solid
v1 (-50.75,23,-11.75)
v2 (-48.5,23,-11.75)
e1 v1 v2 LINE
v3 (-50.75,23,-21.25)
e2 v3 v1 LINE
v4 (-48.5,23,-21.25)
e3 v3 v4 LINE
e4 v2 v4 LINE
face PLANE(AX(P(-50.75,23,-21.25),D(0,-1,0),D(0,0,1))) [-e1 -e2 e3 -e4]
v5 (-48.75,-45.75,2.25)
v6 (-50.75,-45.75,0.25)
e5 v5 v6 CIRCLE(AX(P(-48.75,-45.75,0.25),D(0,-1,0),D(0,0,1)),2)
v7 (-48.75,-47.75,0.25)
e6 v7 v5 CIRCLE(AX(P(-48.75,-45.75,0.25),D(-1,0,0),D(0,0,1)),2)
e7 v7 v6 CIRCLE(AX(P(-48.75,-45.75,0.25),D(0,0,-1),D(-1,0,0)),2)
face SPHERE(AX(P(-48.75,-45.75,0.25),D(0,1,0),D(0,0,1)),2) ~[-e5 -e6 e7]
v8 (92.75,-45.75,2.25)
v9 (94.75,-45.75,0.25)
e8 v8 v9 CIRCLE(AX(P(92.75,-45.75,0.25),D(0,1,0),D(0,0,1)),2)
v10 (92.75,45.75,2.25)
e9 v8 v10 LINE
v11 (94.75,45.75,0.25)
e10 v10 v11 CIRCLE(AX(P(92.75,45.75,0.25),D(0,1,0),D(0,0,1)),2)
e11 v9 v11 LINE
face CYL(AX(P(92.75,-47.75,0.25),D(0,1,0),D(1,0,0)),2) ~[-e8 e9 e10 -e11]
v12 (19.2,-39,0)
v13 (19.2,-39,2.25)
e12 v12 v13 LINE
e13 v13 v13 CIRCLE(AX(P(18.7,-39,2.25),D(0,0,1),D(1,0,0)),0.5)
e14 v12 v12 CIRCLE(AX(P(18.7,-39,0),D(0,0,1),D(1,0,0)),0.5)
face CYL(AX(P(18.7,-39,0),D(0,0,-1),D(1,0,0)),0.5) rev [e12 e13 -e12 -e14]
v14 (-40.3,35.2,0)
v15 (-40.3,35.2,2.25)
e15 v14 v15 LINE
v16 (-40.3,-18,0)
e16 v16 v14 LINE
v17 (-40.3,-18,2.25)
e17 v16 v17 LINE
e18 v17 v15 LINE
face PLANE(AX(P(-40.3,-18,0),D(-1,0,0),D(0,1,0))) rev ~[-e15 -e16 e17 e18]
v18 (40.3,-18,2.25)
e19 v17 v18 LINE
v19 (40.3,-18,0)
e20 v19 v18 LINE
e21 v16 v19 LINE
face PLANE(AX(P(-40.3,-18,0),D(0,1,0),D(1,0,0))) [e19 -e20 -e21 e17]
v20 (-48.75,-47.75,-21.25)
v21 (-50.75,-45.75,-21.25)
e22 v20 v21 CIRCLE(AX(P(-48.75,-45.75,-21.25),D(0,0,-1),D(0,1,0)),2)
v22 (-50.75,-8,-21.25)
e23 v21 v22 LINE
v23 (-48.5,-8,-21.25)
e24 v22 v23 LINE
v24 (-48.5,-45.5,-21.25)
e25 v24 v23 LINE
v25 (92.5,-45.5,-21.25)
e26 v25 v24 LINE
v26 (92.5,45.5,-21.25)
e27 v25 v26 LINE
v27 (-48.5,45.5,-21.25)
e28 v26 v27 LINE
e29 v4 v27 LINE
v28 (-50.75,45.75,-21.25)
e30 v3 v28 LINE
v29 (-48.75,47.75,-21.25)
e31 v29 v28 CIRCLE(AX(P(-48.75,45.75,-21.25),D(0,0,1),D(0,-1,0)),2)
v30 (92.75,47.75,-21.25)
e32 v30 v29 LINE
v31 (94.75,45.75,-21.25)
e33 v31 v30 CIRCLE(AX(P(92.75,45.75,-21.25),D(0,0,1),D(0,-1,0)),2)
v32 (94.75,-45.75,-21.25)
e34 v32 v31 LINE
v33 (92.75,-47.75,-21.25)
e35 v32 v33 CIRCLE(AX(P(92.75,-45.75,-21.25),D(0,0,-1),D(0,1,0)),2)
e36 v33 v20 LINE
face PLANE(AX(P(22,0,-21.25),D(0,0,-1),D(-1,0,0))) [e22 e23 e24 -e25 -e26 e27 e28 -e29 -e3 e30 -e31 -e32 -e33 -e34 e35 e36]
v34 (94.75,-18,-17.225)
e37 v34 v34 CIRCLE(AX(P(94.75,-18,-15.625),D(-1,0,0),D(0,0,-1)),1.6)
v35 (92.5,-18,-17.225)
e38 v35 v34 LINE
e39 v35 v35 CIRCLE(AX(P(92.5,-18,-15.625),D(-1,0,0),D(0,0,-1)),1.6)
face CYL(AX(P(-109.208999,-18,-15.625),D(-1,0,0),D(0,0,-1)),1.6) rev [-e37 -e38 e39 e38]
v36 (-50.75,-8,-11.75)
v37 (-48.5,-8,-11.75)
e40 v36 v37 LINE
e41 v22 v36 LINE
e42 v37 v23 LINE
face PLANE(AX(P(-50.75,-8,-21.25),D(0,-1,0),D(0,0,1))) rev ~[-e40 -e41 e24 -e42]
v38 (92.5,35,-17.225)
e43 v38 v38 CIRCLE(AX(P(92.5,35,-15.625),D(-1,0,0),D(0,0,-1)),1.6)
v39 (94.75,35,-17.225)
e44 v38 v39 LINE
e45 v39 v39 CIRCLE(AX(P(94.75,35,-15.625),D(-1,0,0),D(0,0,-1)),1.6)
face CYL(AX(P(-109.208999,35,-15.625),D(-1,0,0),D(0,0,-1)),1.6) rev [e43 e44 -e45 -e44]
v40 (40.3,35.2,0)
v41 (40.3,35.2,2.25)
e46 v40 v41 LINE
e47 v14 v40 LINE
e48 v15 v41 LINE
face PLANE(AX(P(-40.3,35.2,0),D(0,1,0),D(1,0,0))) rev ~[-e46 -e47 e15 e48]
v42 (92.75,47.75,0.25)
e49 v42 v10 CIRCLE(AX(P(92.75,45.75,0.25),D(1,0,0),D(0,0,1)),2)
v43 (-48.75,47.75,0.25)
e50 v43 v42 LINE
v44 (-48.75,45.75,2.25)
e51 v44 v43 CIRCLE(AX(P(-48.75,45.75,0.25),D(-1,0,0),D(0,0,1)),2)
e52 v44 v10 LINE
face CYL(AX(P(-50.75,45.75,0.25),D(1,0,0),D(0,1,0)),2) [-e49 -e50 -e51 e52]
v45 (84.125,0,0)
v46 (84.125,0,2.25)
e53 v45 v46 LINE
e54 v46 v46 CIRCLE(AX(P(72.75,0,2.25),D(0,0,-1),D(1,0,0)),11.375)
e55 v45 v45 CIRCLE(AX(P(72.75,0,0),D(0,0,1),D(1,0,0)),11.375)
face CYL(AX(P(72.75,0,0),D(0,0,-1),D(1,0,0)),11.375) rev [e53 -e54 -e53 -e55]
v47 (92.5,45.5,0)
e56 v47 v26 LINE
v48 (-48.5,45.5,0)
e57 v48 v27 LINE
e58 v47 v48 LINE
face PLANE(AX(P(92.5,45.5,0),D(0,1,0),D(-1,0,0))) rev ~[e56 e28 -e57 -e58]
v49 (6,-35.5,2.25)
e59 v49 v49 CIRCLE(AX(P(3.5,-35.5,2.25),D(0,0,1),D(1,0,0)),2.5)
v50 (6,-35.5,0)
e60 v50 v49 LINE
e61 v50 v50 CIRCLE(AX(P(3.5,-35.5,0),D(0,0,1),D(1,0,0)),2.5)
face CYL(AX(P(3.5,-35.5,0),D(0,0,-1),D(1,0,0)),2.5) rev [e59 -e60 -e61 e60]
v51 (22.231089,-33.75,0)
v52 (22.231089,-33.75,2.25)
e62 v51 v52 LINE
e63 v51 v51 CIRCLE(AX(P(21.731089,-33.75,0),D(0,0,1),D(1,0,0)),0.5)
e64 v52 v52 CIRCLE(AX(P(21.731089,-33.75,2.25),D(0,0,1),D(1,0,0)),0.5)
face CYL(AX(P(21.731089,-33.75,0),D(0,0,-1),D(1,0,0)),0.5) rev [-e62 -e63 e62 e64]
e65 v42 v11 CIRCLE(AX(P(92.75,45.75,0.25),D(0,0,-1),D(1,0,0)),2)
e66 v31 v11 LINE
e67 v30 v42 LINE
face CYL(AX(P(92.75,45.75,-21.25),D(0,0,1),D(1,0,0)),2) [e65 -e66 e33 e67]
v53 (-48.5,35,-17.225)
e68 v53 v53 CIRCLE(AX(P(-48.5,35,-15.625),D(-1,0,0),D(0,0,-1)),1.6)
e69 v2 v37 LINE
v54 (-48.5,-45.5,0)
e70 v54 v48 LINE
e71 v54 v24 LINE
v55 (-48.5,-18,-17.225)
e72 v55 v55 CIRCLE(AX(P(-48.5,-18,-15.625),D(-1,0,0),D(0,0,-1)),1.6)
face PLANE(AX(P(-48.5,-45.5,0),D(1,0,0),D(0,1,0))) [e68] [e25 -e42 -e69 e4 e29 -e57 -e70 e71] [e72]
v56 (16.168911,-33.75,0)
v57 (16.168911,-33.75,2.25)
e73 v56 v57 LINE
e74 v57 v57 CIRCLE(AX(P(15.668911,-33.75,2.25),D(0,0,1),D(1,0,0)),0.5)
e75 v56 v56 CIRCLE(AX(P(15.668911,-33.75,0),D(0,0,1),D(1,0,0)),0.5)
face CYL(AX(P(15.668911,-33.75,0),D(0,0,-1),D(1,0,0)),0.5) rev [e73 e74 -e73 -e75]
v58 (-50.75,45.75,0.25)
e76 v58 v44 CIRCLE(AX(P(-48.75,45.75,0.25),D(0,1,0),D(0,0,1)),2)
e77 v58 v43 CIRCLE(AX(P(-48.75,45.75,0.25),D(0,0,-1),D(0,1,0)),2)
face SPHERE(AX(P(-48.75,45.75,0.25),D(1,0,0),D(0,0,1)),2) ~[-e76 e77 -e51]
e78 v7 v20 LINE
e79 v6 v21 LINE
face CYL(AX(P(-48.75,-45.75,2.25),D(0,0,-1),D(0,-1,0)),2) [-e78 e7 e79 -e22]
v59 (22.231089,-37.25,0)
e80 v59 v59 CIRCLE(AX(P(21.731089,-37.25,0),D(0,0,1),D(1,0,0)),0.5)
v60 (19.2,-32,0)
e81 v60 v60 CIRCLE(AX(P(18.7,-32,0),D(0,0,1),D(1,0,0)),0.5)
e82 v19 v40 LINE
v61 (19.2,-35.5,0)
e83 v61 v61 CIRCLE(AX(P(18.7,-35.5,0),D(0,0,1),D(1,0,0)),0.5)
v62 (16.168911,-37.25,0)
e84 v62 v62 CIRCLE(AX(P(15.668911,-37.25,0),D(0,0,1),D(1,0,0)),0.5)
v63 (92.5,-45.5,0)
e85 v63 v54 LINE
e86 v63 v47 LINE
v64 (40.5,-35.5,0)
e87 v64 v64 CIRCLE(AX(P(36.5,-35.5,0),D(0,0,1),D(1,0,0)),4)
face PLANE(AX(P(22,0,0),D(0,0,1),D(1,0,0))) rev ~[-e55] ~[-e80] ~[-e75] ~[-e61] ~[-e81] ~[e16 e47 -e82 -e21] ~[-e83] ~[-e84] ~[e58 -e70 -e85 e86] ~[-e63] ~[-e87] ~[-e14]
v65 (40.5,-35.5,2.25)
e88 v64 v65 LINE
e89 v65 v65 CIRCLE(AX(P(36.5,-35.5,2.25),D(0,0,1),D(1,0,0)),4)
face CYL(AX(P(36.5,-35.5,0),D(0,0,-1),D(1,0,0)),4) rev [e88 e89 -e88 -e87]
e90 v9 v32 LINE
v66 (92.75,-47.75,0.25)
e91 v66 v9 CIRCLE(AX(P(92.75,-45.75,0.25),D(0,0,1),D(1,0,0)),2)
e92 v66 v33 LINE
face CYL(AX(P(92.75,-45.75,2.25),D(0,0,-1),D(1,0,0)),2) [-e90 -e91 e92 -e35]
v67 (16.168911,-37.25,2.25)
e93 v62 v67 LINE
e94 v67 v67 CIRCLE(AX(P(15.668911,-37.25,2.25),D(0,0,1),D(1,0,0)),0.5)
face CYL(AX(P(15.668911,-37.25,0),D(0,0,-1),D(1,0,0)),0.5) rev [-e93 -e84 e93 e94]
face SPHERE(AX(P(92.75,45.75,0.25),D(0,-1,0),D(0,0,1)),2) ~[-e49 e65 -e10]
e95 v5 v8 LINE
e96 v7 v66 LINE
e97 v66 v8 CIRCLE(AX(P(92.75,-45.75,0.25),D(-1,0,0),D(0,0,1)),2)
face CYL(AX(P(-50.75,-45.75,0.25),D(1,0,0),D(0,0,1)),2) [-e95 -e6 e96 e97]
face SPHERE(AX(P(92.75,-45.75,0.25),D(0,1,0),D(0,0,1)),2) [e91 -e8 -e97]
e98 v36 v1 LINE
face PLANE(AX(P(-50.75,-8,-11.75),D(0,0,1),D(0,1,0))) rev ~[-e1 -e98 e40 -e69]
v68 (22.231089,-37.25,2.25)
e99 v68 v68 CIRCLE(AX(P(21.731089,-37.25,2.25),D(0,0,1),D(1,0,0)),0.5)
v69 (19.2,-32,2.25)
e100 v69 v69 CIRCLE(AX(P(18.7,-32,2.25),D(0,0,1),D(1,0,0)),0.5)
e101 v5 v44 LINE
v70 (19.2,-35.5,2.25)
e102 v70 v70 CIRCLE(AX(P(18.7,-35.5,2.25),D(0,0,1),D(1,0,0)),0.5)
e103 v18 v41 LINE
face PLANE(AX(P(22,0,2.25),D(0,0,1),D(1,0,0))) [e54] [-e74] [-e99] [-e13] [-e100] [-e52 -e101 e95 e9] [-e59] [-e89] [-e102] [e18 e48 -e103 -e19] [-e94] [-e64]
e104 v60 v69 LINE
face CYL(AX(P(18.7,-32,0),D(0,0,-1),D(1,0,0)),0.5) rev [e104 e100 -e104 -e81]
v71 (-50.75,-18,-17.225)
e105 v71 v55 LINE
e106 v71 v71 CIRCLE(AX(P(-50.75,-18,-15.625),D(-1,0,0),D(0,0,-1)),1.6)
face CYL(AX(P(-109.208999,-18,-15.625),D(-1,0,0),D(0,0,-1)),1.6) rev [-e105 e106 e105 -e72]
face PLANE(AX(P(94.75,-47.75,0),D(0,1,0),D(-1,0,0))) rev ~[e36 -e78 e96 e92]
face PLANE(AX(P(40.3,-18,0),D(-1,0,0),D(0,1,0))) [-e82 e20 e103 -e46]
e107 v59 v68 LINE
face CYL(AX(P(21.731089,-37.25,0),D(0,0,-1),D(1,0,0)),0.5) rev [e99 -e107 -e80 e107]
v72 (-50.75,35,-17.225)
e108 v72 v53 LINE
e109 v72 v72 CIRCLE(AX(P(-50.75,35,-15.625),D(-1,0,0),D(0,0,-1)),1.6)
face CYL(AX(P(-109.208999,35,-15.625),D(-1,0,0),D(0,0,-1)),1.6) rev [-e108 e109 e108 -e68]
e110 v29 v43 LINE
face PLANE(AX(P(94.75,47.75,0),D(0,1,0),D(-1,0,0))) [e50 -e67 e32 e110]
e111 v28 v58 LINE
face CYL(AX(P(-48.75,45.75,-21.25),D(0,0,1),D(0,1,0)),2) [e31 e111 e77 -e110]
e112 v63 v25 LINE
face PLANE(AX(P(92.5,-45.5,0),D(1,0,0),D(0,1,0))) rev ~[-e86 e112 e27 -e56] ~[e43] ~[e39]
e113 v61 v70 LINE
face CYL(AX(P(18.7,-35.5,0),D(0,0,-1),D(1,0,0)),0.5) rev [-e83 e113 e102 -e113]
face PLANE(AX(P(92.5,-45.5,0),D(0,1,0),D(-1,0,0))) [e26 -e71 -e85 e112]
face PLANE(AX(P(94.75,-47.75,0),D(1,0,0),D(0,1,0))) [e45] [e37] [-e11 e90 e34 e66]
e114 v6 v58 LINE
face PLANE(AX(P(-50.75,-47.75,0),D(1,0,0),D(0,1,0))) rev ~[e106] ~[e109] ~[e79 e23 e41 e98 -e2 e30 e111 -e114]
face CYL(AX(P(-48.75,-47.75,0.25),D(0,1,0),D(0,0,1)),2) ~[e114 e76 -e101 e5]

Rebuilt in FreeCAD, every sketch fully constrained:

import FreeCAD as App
import Part
import Sketcher

V = App.Vector
Q = App.Units.Quantity


def edges_at(feature, points):
    """Names of the edges that pass closest to the given points."""
    edges = feature.Shape.Edges
    near = lambda p: min(range(len(edges)), key=lambda i: edges[i].distToShape(Part.Vertex(*p))[0])
    return sorted({f"Edge{near(p) + 1}" for p in points})

doc = App.newDocument("Part")
body = doc.addObject("PartDesign::Body", "Body")

sketch1 = body.newObject("Sketcher::SketchObject", "Sketch")
sketch1.AttachmentSupport = (doc.getObject("XY_Plane"), [""])
sketch1.MapMode = "FlatFace"
sketch1.addGeometry(Part.LineSegment(V(-50.8, 47.8, 0), V(-50.8, -47.8, 0)), False)
sketch1.addGeometry(Part.LineSegment(V(-50.8, -47.8, 0), V(94.8, -47.8, 0)), False)
sketch1.addGeometry(Part.LineSegment(V(94.8, -47.8, 0), V(94.8, 47.8, 0)), False)
sketch1.addGeometry(Part.LineSegment(V(94.8, 47.8, 0), V(-50.8, 47.8, 0)), False)
sketch1.addGeometry(Part.Circle(V(3.5, -35.5, 0), V(0, 0, 1), 2.5), False)
sketch1.addGeometry(Part.Circle(V(15.7, -37.2, 0), V(0, 0, 1), 0.5), False)
sketch1.addGeometry(Part.Circle(V(18.7, -39, 0), V(0, 0, 1), 0.5), False)
sketch1.addGeometry(Part.Circle(V(18.7, -35.5, 0), V(0, 0, 1), 0.5), False)
sketch1.addGeometry(Part.Circle(V(15.7, -33.8, 0), V(0, 0, 1), 0.5), False)
sketch1.addGeometry(Part.Circle(V(18.7, -32, 0), V(0, 0, 1), 0.5), False)
sketch1.addGeometry(Part.Circle(V(21.7, -37.2, 0), V(0, 0, 1), 0.5), False)
sketch1.addGeometry(Part.Circle(V(21.7, -33.8, 0), V(0, 0, 1), 0.5), False)
sketch1.addGeometry(Part.Circle(V(36.5, -35.5, 0), V(0, 0, 1), 4), False)
sketch1.addGeometry(Part.LineSegment(V(40.3, -18, 0), V(-40.3, -18, 0)), False)
sketch1.addGeometry(Part.LineSegment(V(-40.3, -18, 0), V(-40.3, 35.2, 0)), False)
sketch1.addGeometry(Part.LineSegment(V(-40.3, 35.2, 0), V(40.3, 35.2, 0)), False)
sketch1.addGeometry(Part.LineSegment(V(40.3, 35.2, 0), V(40.3, -18, 0)), False)
sketch1.addConstraint(Sketcher.Constraint("Coincident", 0, 2, 1, 1))
sketch1.addConstraint(Sketcher.Constraint("Coincident", 1, 2, 2, 1))
sketch1.addConstraint(Sketcher.Constraint("Coincident", 2, 2, 3, 1))
sketch1.addConstraint(Sketcher.Constraint("Coincident", 3, 2, 0, 1))
sketch1.addConstraint(Sketcher.Constraint("Coincident", 13, 2, 14, 1))
sketch1.addConstraint(Sketcher.Constraint("Coincident", 14, 2, 15, 1))
sketch1.addConstraint(Sketcher.Constraint("Coincident", 15, 2, 16, 1))
sketch1.addConstraint(Sketcher.Constraint("Coincident", 16, 2, 13, 1))
sketch1.addConstraint(Sketcher.Constraint("Vertical", 0))
sketch1.addConstraint(Sketcher.Constraint("Horizontal", 1))
sketch1.addConstraint(Sketcher.Constraint("Vertical", 2))
sketch1.addConstraint(Sketcher.Constraint("Horizontal", 3))
sketch1.addConstraint(Sketcher.Constraint("Horizontal", 13))
sketch1.addConstraint(Sketcher.Constraint("Vertical", 14))
sketch1.addConstraint(Sketcher.Constraint("Horizontal", 15))
sketch1.addConstraint(Sketcher.Constraint("Vertical", 16))
sketch1.addConstraint(Sketcher.Constraint("Equal", 5, 6))
sketch1.addConstraint(Sketcher.Constraint("Equal", 6, 7))
sketch1.addConstraint(Sketcher.Constraint("Equal", 7, 8))
sketch1.addConstraint(Sketcher.Constraint("Equal", 8, 9))
sketch1.addConstraint(Sketcher.Constraint("Equal", 9, 10))
sketch1.addConstraint(Sketcher.Constraint("Equal", 10, 11))
sketch1.addConstraint(Sketcher.Constraint("Horizontal", 4, 3, 7, 3))
sketch1.addConstraint(Sketcher.Constraint("Horizontal", 5, 3, 10, 3))
sketch1.addConstraint(Sketcher.Constraint("Horizontal", 8, 3, 11, 3))
sketch1.addConstraint(Sketcher.Constraint("Horizontal", 7, 3, 12, 3))
sketch1.addConstraint(Sketcher.Constraint("Vertical", 6, 3, 7, 3))
sketch1.addConstraint(Sketcher.Constraint("Vertical", 5, 3, 8, 3))
sketch1.addConstraint(Sketcher.Constraint("Vertical", 7, 3, 9, 3))
sketch1.addConstraint(Sketcher.Constraint("Vertical", 10, 3, 11, 3))
sketch1.addConstraint(Sketcher.Constraint("Diameter", 4, Q("5 mm")))
sketch1.addConstraint(Sketcher.Constraint("Diameter", 5, Q("1 mm")))
sketch1.addConstraint(Sketcher.Constraint("Diameter", 12, Q("8 mm")))
sketch1.addConstraint(Sketcher.Constraint("DistanceX", 1, 1, 1, 2, Q("145.5 mm")))
sketch1.addConstraint(Sketcher.Constraint("DistanceX", 13, 2, 13, 1, Q("80.6 mm")))
sketch1.addConstraint(Sketcher.Constraint("DistanceY", 0, 2, 0, 1, Q("95.5 mm")))
sketch1.addConstraint(Sketcher.Constraint("DistanceY", 14, 1, 14, 2, Q("53.2 mm")))
sketch1.addConstraint(Sketcher.Constraint("DistanceY", 6, 3, -1, 1, Q("39 mm")))
sketch1.addConstraint(Sketcher.Constraint("DistanceY", 9, 3, -1, 1, Q("32 mm")))
sketch1.addConstraint(Sketcher.Constraint("DistanceY", 13, 2, -1, 1, Q("18 mm")))
sketch1.addConstraint(Sketcher.Constraint("DistanceY", 0, 2, 8, 3, Q("14 mm")))
sketch1.addConstraint(Sketcher.Constraint("DistanceY", 10, 3, 2, 2, Q("85 mm")))
sketch1.addConstraint(Sketcher.Constraint("DistanceX", 13, 2, 9, 3, Q("59 mm")))
sketch1.addConstraint(Sketcher.Constraint("DistanceX", -1, 1, 4, 3, Q("3.5 mm")))
sketch1.addConstraint(Sketcher.Constraint("DistanceY", 4, 3, -1, 1, Q("35.5 mm")))
sketch1.addConstraint(Sketcher.Constraint("DistanceX", -1, 1, 6, 3, Q("18.7 mm")))
sketch1.addConstraint(Sketcher.Constraint("DistanceX", -1, 1, 12, 3, Q("36.5 mm")))
sketch1.addConstraint(Sketcher.Constraint("DistanceY", 5, 3, -1, 1, Q("37.25 mm")))
sketch1.addConstraint(Sketcher.Constraint("DistanceX", 0, 2, -1, 1, Q("50.75 mm")))
sketch1.addConstraint(Sketcher.Constraint("DistanceX", -1, 1, 5, 3, Q("15.668911 mm")))
sketch1.addConstraint(Sketcher.Constraint("DistanceX", -1, 1, 10, 3, Q("21.731089 mm")))
pad1 = body.newObject("PartDesign::Pad", "Pad")
pad1.Profile = sketch1
pad1.Length = 2.25

sketch2 = body.newObject("Sketcher::SketchObject", "Sketch001")
sketch2.AttachmentSupport = (doc.getObject("XY_Plane"), [""])
sketch2.MapMode = "FlatFace"
sketch2.addGeometry(Part.Circle(V(73, 0, 0), V(0, 0, 1), 11), False)
sketch2.addConstraint(Sketcher.Constraint("PointOnObject", 0, 3, -1))
sketch2.addConstraint(Sketcher.Constraint("Diameter", 0, Q("22.75 mm")))
sketch2.addConstraint(Sketcher.Constraint("DistanceX", -1, 1, 0, 3, Q("72.75 mm")))
pocket1 = body.newObject("PartDesign::Pocket", "Pocket")
pocket1.Profile = sketch2
pocket1.Type = "ThroughAll"
pocket1.Reversed = True

sketch3 = body.newObject("Sketcher::SketchObject", "Sketch002")
sketch3.AttachmentSupport = (doc.getObject("XY_Plane"), [""])
sketch3.MapMode = "FlatFace"
sketch3.addGeometry(Part.LineSegment(V(95, 48, 0), V(95, -48, 0)), False)
sketch3.addGeometry(Part.LineSegment(V(95, -48, 0), V(-51, -48, 0)), False)
sketch3.addGeometry(Part.LineSegment(V(-51, -48, 0), V(-51, 48, 0)), False)
sketch3.addGeometry(Part.LineSegment(V(-51, 48, 0), V(95, 48, 0)), False)
sketch3.addGeometry(Part.LineSegment(V(-48, -46, 0), V(92, -46, 0)), False)
sketch3.addGeometry(Part.LineSegment(V(92, -46, 0), V(92, 46, 0)), False)
sketch3.addGeometry(Part.LineSegment(V(92, 46, 0), V(-48, 46, 0)), False)
sketch3.addGeometry(Part.LineSegment(V(-48, 46, 0), V(-48, -46, 0)), False)
sketch3.addConstraint(Sketcher.Constraint("Coincident", 0, 2, 1, 1))
sketch3.addConstraint(Sketcher.Constraint("Coincident", 1, 2, 2, 1))
sketch3.addConstraint(Sketcher.Constraint("Coincident", 2, 2, 3, 1))
sketch3.addConstraint(Sketcher.Constraint("Coincident", 3, 2, 0, 1))
sketch3.addConstraint(Sketcher.Constraint("Coincident", 4, 2, 5, 1))
sketch3.addConstraint(Sketcher.Constraint("Coincident", 5, 2, 6, 1))
sketch3.addConstraint(Sketcher.Constraint("Coincident", 6, 2, 7, 1))
sketch3.addConstraint(Sketcher.Constraint("Coincident", 7, 2, 4, 1))
sketch3.addConstraint(Sketcher.Constraint("Vertical", 0))
sketch3.addConstraint(Sketcher.Constraint("Horizontal", 1))
sketch3.addConstraint(Sketcher.Constraint("Vertical", 2))
sketch3.addConstraint(Sketcher.Constraint("Horizontal", 3))
sketch3.addConstraint(Sketcher.Constraint("Horizontal", 4))
sketch3.addConstraint(Sketcher.Constraint("Vertical", 5))
sketch3.addConstraint(Sketcher.Constraint("Horizontal", 6))
sketch3.addConstraint(Sketcher.Constraint("Vertical", 7))
sketch3.addConstraint(Sketcher.Constraint("DistanceX", 4, 1, 4, 2, Q("141 mm")))
sketch3.addConstraint(Sketcher.Constraint("DistanceY", 5, 1, 5, 2, Q("91 mm")))
sketch3.addConstraint(Sketcher.Constraint("DistanceX", 1, 2, 1, 1, Q("145.5 mm")))
sketch3.addConstraint(Sketcher.Constraint("DistanceY", 0, 2, 0, 1, Q("95.5 mm")))
sketch3.addConstraint(Sketcher.Constraint("DistanceX", -1, 1, 4, 2, Q("92.5 mm")))
sketch3.addConstraint(Sketcher.Constraint("DistanceY", 4, 2, -1, 1, Q("45.5 mm")))
sketch3.addConstraint(Sketcher.Constraint("DistanceX", -1, 1, 0, 2, Q("94.75 mm")))
sketch3.addConstraint(Sketcher.Constraint("DistanceY", 0, 2, -1, 1, Q("47.75 mm")))
pad2 = body.newObject("PartDesign::Pad", "Pad001")
pad2.Profile = sketch3
pad2.Length = 21.25
pad2.Reversed = True

sketch4 = body.newObject("Sketcher::SketchObject", "Sketch003")
sketch4.AttachmentSupport = (doc.getObject("YZ_Plane"), [""])
sketch4.MapMode = "FlatFace"
sketch4.AttachmentOffset = App.Placement(V(0, 0, -50.75), App.Rotation())
sketch4.addGeometry(Part.LineSegment(V(23, -21, 0), V(-8, -21, 0)), False)
sketch4.addGeometry(Part.LineSegment(V(-8, -21, 0), V(-8, -12, 0)), False)
sketch4.addGeometry(Part.LineSegment(V(-8, -12, 0), V(23, -12, 0)), False)
sketch4.addGeometry(Part.LineSegment(V(23, -12, 0), V(23, -21, 0)), False)
sketch4.addConstraint(Sketcher.Constraint("Coincident", 0, 2, 1, 1))
sketch4.addConstraint(Sketcher.Constraint("Coincident", 1, 2, 2, 1))
sketch4.addConstraint(Sketcher.Constraint("Coincident", 2, 2, 3, 1))
sketch4.addConstraint(Sketcher.Constraint("Coincident", 3, 2, 0, 1))
sketch4.addConstraint(Sketcher.Constraint("Horizontal", 0))
sketch4.addConstraint(Sketcher.Constraint("Vertical", 1))
sketch4.addConstraint(Sketcher.Constraint("Horizontal", 2))
sketch4.addConstraint(Sketcher.Constraint("Vertical", 3))
sketch4.addConstraint(Sketcher.Constraint("DistanceX", 0, 2, 0, 1, Q("31 mm")))
sketch4.addConstraint(Sketcher.Constraint("DistanceY", 1, 1, 1, 2, Q("9.5 mm")))
sketch4.addConstraint(Sketcher.Constraint("DistanceX", 0, 2, -1, 1, Q("8 mm")))
sketch4.addConstraint(Sketcher.Constraint("DistanceY", 0, 2, -1, 1, Q("21.25 mm")))
pocket2 = body.newObject("PartDesign::Pocket", "Pocket001")
pocket2.Profile = sketch4
pocket2.Length = 2.5
pocket2.Reversed = True
doc.recompute()

fillet = body.newObject("PartDesign::Fillet", "Fillet")
fillet.Base = (pocket2, edges_at(pocket2, [
    (94.75, 0, 2.25),
    (22, 47.75, 2.25),
    (-50.75, 0, 2.25),
    (22, -47.75, 2.25),
    (-50.75, 47.75, -9.5),
    (94.75, 47.75, -9.5),
    (94.75, -47.75, -9.5),
    (-50.75, -47.75, -9.5),
]))
fillet.Radius = 2

sketch5 = body.newObject("Sketcher::SketchObject", "Sketch004")
sketch5.AttachmentSupport = (doc.getObject("YZ_Plane"), [""])
sketch5.MapMode = "FlatFace"
sketch5.addGeometry(Part.Circle(V(35, -15.6, 0), V(0, 0, 1), 1.6), False)
sketch5.addGeometry(Part.Circle(V(-18, -15.6, 0), V(0, 0, 1), 1.6), False)
sketch5.addConstraint(Sketcher.Constraint("Equal", 0, 1))
sketch5.addConstraint(Sketcher.Constraint("Horizontal", 0, 3, 1, 3))
sketch5.addConstraint(Sketcher.Constraint("Diameter", 0, Q("3.2 mm")))
sketch5.addConstraint(Sketcher.Constraint("DistanceX", -1, 1, 0, 3, Q("35 mm")))
sketch5.addConstraint(Sketcher.Constraint("DistanceX", 1, 3, -1, 1, Q("18 mm")))
sketch5.addConstraint(Sketcher.Constraint("DistanceY", 0, 3, -1, 1, Q("15.625 mm")))
pocket3 = body.newObject("PartDesign::Pocket", "Pocket002")
pocket3.Profile = sketch5
pocket3.Type = "ThroughAll"
pocket3.Midplane = True

doc.recompute()
